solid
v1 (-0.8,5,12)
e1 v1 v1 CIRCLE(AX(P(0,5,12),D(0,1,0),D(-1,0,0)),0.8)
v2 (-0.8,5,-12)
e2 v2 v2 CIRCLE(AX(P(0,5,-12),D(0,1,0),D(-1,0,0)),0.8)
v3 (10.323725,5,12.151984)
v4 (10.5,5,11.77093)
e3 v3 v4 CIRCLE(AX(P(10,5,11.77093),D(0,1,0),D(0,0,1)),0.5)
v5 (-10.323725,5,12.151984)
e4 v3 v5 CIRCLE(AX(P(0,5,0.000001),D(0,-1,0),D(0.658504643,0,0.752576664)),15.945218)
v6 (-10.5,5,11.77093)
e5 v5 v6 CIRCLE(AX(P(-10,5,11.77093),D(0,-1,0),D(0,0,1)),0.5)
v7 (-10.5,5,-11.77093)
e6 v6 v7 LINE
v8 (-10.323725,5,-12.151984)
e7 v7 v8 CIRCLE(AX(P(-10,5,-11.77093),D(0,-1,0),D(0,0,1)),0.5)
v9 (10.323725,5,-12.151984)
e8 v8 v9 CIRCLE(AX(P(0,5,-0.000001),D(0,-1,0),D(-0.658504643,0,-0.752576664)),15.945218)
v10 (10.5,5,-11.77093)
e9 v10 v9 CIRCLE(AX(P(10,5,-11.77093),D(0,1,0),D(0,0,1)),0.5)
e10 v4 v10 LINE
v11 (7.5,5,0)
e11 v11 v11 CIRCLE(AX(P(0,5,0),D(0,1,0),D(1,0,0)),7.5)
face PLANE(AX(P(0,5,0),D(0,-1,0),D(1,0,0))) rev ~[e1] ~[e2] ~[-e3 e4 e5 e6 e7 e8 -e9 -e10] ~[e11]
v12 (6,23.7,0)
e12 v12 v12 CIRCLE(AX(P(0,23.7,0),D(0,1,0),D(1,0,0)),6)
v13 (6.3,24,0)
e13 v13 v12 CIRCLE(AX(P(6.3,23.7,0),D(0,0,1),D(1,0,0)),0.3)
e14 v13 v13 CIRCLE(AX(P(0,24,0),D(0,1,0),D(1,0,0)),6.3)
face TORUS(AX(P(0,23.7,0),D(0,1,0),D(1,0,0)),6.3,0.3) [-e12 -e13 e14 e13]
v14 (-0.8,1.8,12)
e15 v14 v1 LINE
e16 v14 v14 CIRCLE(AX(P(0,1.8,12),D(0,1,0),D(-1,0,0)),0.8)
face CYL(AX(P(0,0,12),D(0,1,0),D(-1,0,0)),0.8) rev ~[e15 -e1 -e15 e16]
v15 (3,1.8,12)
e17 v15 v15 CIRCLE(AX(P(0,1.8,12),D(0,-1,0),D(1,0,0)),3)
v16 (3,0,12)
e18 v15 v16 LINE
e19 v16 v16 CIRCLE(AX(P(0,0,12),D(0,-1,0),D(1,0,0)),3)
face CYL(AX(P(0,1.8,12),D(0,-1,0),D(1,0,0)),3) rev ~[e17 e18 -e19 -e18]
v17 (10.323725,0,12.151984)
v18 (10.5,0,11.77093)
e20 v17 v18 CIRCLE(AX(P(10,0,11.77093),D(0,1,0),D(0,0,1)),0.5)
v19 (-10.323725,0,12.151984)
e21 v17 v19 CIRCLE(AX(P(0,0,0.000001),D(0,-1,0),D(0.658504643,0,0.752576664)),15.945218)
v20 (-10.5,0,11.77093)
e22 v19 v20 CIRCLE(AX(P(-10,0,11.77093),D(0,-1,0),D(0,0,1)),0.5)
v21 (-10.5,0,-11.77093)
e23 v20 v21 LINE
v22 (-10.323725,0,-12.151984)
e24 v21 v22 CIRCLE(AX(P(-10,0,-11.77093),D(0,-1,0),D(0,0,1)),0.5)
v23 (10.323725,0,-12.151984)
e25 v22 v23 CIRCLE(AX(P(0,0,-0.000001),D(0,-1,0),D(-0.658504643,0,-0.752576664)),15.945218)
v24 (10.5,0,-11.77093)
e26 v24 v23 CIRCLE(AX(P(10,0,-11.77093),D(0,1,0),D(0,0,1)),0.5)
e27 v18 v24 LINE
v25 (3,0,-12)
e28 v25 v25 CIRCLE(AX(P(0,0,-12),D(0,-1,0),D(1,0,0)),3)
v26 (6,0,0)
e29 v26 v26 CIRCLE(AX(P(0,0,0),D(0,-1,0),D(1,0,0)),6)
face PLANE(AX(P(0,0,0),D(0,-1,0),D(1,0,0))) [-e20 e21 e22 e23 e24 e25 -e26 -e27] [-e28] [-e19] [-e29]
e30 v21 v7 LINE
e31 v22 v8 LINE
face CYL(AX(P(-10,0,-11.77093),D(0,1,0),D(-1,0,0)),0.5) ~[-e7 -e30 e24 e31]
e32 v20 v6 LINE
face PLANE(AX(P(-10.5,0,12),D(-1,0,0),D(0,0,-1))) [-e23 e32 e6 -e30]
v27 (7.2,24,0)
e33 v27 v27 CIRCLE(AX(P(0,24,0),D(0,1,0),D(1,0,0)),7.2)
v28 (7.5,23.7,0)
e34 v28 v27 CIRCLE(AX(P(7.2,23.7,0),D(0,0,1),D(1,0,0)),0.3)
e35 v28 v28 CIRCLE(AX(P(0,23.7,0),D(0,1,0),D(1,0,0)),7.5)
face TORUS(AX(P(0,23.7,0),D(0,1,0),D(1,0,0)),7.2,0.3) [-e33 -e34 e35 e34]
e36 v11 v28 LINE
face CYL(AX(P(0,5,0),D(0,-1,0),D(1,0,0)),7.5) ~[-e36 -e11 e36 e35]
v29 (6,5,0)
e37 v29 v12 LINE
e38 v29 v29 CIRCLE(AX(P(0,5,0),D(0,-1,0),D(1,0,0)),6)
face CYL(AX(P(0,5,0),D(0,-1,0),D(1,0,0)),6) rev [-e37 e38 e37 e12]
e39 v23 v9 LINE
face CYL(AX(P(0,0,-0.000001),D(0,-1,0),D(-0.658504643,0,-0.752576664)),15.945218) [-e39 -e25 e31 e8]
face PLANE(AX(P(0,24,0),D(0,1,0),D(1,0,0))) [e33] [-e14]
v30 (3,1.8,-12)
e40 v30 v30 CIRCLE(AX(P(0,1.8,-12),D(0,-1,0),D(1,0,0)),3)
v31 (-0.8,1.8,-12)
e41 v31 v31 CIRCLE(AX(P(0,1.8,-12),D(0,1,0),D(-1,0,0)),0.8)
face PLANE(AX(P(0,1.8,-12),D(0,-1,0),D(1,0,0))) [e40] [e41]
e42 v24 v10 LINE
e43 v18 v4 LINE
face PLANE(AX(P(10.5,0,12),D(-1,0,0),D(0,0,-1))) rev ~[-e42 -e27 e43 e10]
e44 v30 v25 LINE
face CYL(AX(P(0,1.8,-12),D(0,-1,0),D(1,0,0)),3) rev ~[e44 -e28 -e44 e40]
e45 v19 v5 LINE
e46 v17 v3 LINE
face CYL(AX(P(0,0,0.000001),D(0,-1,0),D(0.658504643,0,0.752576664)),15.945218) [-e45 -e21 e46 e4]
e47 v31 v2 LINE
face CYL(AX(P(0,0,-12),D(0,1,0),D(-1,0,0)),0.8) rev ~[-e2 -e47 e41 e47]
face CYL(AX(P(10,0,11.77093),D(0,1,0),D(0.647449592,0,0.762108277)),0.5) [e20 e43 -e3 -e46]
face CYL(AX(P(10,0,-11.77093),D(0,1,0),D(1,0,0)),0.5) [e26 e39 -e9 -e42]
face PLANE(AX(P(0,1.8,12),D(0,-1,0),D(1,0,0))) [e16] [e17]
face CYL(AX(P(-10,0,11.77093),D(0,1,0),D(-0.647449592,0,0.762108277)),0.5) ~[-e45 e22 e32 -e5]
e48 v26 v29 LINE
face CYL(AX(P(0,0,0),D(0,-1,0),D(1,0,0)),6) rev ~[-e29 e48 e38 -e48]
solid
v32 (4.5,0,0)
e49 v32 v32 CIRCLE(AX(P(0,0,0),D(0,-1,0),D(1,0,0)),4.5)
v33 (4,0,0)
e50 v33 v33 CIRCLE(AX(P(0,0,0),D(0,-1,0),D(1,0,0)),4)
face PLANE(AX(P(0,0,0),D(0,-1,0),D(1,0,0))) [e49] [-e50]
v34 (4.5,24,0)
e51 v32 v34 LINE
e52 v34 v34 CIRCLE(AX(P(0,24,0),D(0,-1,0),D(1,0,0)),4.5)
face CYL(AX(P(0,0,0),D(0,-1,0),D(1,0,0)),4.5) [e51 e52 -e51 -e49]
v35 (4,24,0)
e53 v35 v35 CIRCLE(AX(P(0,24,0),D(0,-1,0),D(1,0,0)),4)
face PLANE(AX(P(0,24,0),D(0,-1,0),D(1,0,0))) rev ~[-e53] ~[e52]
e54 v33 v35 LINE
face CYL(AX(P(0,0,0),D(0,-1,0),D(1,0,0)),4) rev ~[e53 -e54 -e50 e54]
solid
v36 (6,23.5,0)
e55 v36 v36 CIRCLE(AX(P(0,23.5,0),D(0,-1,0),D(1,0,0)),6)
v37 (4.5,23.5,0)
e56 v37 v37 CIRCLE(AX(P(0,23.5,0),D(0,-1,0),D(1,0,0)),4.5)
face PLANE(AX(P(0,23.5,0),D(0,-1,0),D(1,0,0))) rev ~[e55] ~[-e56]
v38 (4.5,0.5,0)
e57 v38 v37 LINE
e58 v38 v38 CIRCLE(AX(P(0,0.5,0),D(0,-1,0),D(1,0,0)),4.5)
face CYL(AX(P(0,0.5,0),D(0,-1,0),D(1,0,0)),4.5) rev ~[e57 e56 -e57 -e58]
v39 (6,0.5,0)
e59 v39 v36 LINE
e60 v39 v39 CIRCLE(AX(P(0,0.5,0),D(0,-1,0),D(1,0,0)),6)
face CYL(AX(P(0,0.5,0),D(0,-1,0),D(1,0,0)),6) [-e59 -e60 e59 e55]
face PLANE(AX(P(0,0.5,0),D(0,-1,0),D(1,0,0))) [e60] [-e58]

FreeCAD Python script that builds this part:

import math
import FreeCAD as App
import Part
import Sketcher

V = App.Vector
Q = App.Units.Quantity


def edges_at(feature, points):
    """Names of the edges that pass closest to the given points."""
    edges = feature.Shape.Edges
    near = lambda p: min(range(len(edges)), key=lambda i: edges[i].distToShape(Part.Vertex(*p))[0])
    return sorted({f"Edge{near(p) + 1}" for p in points})

doc = App.newDocument("Part")
body = doc.addObject("PartDesign::Body", "Body")

# Sketch on XZ plane
sketch1 = body.newObject("Sketcher::SketchObject", "Sketch")
sketch1.AttachmentSupport = (doc.getObject("XZ_Plane"), [""])
sketch1.MapMode = "FlatFace"
sketch1.addGeometry([
    Part.ArcOfCircle(Part.Circle(V(0, 0.000001, 0), V(0, 0, 1), 15.945218), math.radians(48.814072), math.radians(131.185928)),  # 0
    Part.LineSegment(V(-10.5, 12, 0), V(-10.5, -12, 0)),  # 1
    Part.ArcOfCircle(Part.Circle(V(0, -0.000001, 0), V(0, 0, 1), 15.945218), math.radians(-131.185928), math.radians(-48.814072)),  # 2
    Part.LineSegment(V(10.5, -12, 0), V(10.5, 12, 0)),  # 3
    Part.Circle(V(0, 0, 0), V(0, 0, 1), 6),  # 4
], False)
sketch1.addConstraint([
    Sketcher.Constraint("Coincident", 0, 2, 1, 1),
    Sketcher.Constraint("Coincident", 1, 2, 2, 1),
    Sketcher.Constraint("Coincident", 2, 2, 3, 1),
    Sketcher.Constraint("Coincident", 3, 2, 0, 1),
    Sketcher.Constraint("Vertical", 1),
    Sketcher.Constraint("Vertical", 3),
    Sketcher.Constraint("Coincident", 0, 3, -1, 1),
    Sketcher.Constraint("Coincident", 2, 3, -1, 1),
    Sketcher.Constraint("Coincident", 4, 3, -1, 1),
    Sketcher.Constraint("Equal", 0, 2),
    Sketcher.Constraint("Horizontal", 1, 2, 2, 2),
    Sketcher.Constraint("Diameter", 4, Q("12 mm")),
    Sketcher.Constraint("DistanceY", 1, 2, 1, 1, Q("24 mm")),
    Sketcher.Constraint("DistanceX", 1, 2, 2, 2, Q("21 mm")),
])
pad1 = body.newObject("PartDesign::Pad", "Pad")
pad1.Profile = sketch1
pad1.Length = 5
pad1.Reversed = True

# Sketch on XZ plane
sketch2 = body.newObject("Sketcher::SketchObject", "Sketch001")
sketch2.AttachmentSupport = (doc.getObject("XZ_Plane"), [""])
sketch2.MapMode = "FlatFace"
sketch2.addGeometry([
    Part.Circle(V(0, 12, 0), V(0, 0, 1), 0.8),
    Part.Circle(V(0, -12, 0), V(0, 0, 1), 0.8),
], False)
sketch2.addConstraint([
    Sketcher.Constraint("Equal", 0, 1),
    Sketcher.Constraint("Symmetric", 0, 3, 1, 3, -1, 1),
    Sketcher.Constraint("PointOnObject", 0, 3, -2),
    Sketcher.Constraint("Diameter", 0, Q("1.6 mm")),
    Sketcher.Constraint("DistanceY", -1, 1, 0, 3, Q("12 mm")),
])
doc.recompute()
hole = body.newObject("PartDesign::Hole", "Hole")
hole.Profile = sketch2
hole.ThreadType = "None"
hole.Diameter = 1.6
hole.DepthType = "ThroughAll"
hole.HoleCutType = "Counterbore"
hole.HoleCutDiameter = 6
hole.HoleCutDepth = 1.8

# Sketch on XZ plane
sketch3 = body.newObject("Sketcher::SketchObject", "Sketch002")
sketch3.AttachmentSupport = (doc.getObject("XZ_Plane"), [""])
sketch3.MapMode = "FlatFace"
sketch3.AttachmentOffset = App.Placement(V(0, 0, -5), App.Rotation())
sketch3.addGeometry([
    Part.Circle(V(0, 0, 0), V(0, 0, 1), 7.5),
    Part.Circle(V(0, 0, 0), V(0, 0, 1), 6),
], False)
sketch3.addConstraint([
    Sketcher.Constraint("Coincident", 0, 3, -1, 1),
    Sketcher.Constraint("Coincident", 1, 3, -1, 1),
    Sketcher.Constraint("Diameter", 0, Q("15 mm")),
    Sketcher.Constraint("Diameter", 1, Q("12 mm")),
])
pad2 = body.newObject("PartDesign::Pad", "Pad001")
pad2.Profile = sketch3
pad2.Length = 19
pad2.Reversed = True
doc.recompute()

fillet = body.newObject("PartDesign::Fillet", "Fillet")
fillet.Base = (pad2, edges_at(pad2, [
    (10.5, 2.5, -12),
    (10.5, 2.5, 12),
    (-10.5, 2.5, 12),
    (-10.5, 2.5, -12),
]))
fillet.Radius = 0.5
doc.recompute()

fillet2 = body.newObject("PartDesign::Fillet", "Fillet001")
fillet2.Base = (fillet, edges_at(fillet, [(-7.5, 24, 0), (-6, 24, 0)]))
fillet2.Radius = 0.3
body2 = doc.addObject("PartDesign::Body", "Body001")

# Sketch on XZ plane
sketch4 = body2.newObject("Sketcher::SketchObject", "Sketch003")
sketch4.AttachmentSupport = (doc.getObject("XZ_Plane001"), [""])
sketch4.MapMode = "FlatFace"
sketch4.addGeometry([
    Part.Circle(V(0, 0, 0), V(0, 0, 1), 6),
    Part.Circle(V(0, 0, 0), V(0, 0, 1), 4.5),
], False)
sketch4.addConstraint([
    Sketcher.Constraint("Coincident", 0, 3, -1, 1),
    Sketcher.Constraint("Coincident", 1, 3, -1, 1),
    Sketcher.Constraint("Diameter", 0, Q("12 mm")),
    Sketcher.Constraint("Diameter", 1, Q("9 mm")),
])
pad3 = body2.newObject("PartDesign::Pad", "Pad002")
pad3.Profile = sketch4
pad3.Length = 23
pad3.Reversed = True
body3 = doc.addObject("PartDesign::Body", "Body002")
doc.recompute()

body2.Placement = App.Placement(V(0, 0.5, 0), App.Rotation(V(0, 0, 1), 0))
boolean = body3.newObject("PartDesign::Boolean", "Boolean")
boolean.Type = "Fuse"
boolean.addObjects([body2])
body4 = doc.addObject("PartDesign::Body", "Body003")

# Sketch on XZ plane
sketch5 = body4.newObject("Sketcher::SketchObject", "Sketch004")
sketch5.AttachmentSupport = (doc.getObject("XZ_Plane003"), [""])
sketch5.MapMode = "FlatFace"
sketch5.addGeometry([
    Part.Circle(V(0, 0, 0), V(0, 0, 1), 4.5),
    Part.Circle(V(0, 0, 0), V(0, 0, 1), 4),
], False)
sketch5.addConstraint([
    Sketcher.Constraint("Coincident", 0, 3, -1, 1),
    Sketcher.Constraint("Coincident", 1, 3, -1, 1),
    Sketcher.Constraint("Diameter", 0, Q("9 mm")),
    Sketcher.Constraint("Diameter", 1, Q("8 mm")),
])
pad4 = body4.newObject("PartDesign::Pad", "Pad003")
pad4.Profile = sketch5
pad4.Length = 24
pad4.Reversed = True

doc.recompute()
